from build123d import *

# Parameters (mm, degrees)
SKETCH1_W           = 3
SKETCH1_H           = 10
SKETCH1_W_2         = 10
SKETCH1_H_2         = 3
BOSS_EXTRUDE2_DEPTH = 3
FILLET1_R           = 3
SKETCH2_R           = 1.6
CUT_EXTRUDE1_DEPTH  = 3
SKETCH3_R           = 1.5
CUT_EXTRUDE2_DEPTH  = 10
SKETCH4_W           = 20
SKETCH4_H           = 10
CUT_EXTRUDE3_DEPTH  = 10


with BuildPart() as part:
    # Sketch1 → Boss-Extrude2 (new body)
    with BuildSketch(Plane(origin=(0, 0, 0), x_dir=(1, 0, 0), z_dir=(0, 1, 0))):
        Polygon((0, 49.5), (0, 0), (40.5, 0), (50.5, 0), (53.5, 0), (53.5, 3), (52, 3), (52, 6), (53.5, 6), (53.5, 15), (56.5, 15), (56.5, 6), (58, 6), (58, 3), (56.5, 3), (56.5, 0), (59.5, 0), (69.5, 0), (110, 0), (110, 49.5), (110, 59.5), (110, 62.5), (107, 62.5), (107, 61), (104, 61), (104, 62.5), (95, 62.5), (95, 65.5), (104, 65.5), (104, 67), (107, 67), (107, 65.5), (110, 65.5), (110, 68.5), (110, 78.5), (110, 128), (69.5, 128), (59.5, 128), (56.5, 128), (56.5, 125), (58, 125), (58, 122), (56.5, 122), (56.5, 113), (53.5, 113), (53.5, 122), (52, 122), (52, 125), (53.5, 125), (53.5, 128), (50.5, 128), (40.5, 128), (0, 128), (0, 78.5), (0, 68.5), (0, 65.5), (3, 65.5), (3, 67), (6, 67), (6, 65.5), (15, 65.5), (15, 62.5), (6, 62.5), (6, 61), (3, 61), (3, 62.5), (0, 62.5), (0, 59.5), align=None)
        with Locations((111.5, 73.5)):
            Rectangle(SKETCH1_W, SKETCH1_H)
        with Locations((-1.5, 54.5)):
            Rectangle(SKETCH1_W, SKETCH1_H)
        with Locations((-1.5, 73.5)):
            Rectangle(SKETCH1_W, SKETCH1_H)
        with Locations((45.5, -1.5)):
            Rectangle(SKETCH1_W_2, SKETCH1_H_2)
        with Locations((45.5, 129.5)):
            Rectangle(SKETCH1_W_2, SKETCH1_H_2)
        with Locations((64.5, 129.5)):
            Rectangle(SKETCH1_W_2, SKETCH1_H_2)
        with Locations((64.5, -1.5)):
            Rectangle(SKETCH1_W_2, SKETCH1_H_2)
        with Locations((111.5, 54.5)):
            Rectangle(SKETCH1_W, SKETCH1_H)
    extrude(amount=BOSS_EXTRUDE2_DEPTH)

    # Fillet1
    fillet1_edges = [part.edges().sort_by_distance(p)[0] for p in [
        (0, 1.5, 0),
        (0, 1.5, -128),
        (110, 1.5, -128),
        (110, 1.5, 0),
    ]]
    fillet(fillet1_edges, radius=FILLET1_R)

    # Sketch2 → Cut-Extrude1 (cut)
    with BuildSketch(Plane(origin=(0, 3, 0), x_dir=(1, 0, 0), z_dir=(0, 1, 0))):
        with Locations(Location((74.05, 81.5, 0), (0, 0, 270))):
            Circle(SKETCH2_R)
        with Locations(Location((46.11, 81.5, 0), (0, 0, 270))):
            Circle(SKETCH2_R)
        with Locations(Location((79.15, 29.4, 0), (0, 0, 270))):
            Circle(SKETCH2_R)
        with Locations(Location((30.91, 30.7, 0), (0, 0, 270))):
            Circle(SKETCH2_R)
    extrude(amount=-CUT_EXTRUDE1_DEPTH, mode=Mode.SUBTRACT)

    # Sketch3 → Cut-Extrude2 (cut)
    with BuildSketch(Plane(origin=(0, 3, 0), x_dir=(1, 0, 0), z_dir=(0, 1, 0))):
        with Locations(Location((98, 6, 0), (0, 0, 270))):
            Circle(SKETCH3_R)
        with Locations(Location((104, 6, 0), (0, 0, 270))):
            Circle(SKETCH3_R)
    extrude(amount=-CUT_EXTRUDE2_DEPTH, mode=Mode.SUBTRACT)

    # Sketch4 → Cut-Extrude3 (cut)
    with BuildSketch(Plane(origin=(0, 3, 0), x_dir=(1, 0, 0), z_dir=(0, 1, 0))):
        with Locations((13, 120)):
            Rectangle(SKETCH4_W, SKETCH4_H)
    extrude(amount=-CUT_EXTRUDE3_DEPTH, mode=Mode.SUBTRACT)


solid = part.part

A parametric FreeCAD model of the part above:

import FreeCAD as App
import Part
import Sketcher

V = App.Vector


def edges_at(feature, points):
    """Names of the edges that pass closest to the given points."""
    edges = feature.Shape.Edges
    near = lambda p: min(range(len(edges)), key=lambda i: edges[i].distToShape(Part.Vertex(*p))[0])
    return sorted({f"Edge{near(p) + 1}" for p in points})


def add_polygon(sketch, points):
    """Adds a closed chain of lines whose ends are joined by coincident constraints."""
    first, n = sketch.GeometryCount, len(points)
    for a, b in zip(points, points[1:] + points[:1]):
        sketch.addGeometry(Part.LineSegment(App.Vector(*a, 0), App.Vector(*b, 0)), False)
    for i in range(n):
        sketch.addConstraint(Sketcher.Constraint("Coincident", first + i, 2, first + (i + 1) % n, 1))

doc = App.newDocument("Part")
body = doc.addObject("PartDesign::Body", "Body")

sketch1 = body.newObject("Sketcher::SketchObject", "Sketch")
sketch1.AttachmentSupport = (doc.getObject("XZ_Plane"), [""])
sketch1.MapMode = "FlatFace"
add_polygon(sketch1, [(0, 0), (40.5, 0), (40.5, 3), (50.5, 3), (50.5, 0), (53.5, 0), (53.5, -3), (52, -3), (52, -6), (53.5, -6), (53.5, -15), (56.5, -15), (56.5, -6), (58, -6), (58, -3), (56.5, -3), (56.5, 0), (59.5, 0), (59.5, 3), (69.5, 3), (69.5, 0), (110, 0), (110, -49.5), (113, -49.5), (113, -59.5), (110, -59.5), (110, -62.5), (107, -62.5), (107, -61), (104, -61), (104, -62.5), (95, -62.5), (95, -65.5), (104, -65.5), (104, -67), (107, -67), (107, -65.5), (110, -65.5), (110, -68.5), (113, -68.5), (113, -78.5), (110, -78.5), (110, -128), (69.5, -128), (69.5, -131), (59.5, -131), (59.5, -128), (56.5, -128), (56.5, -125), (58, -125), (58, -122), (56.5, -122), (56.5, -113), (53.5, -113), (53.5, -122), (52, -122), (52, -125), (53.5, -125), (53.5, -128), (50.5, -128), (50.5, -131), (40.5, -131), (40.5, -128), (0, -128), (0, -78.5), (-3, -78.5), (-3, -68.5), (0, -68.5), (0, -65.5), (3, -65.5), (3, -67), (6, -67), (6, -65.5), (15, -65.5), (15, -62.5), (6, -62.5), (6, -61), (3, -61), (3, -62.5), (0, -62.5), (0, -59.5), (-3, -59.5), (-3, -49.5), (0, -49.5)])
sketch1.addConstraint([
    Sketcher.Constraint("Horizontal", 0),
    Sketcher.Constraint("Vertical", 1),
    Sketcher.Constraint("Horizontal", 2),
    Sketcher.Constraint("Vertical", 3),
    Sketcher.Constraint("Horizontal", 4),
    Sketcher.Constraint("Vertical", 5),
    Sketcher.Constraint("Horizontal", 6),
    Sketcher.Constraint("Vertical", 7),
    Sketcher.Constraint("Horizontal", 8),
    Sketcher.Constraint("Vertical", 9),
    Sketcher.Constraint("Horizontal", 10),
    Sketcher.Constraint("Vertical", 11),
    Sketcher.Constraint("Horizontal", 12),
    Sketcher.Constraint("Vertical", 13),
    Sketcher.Constraint("Horizontal", 14),
    Sketcher.Constraint("Vertical", 15),
    Sketcher.Constraint("Horizontal", 16),
    Sketcher.Constraint("Vertical", 17),
    Sketcher.Constraint("Horizontal", 18),
    Sketcher.Constraint("Vertical", 19),
    Sketcher.Constraint("Horizontal", 20),
    Sketcher.Constraint("Vertical", 21),
    Sketcher.Constraint("Horizontal", 22),
    Sketcher.Constraint("Vertical", 23),
    Sketcher.Constraint("Horizontal", 24),
    Sketcher.Constraint("Vertical", 25),
    Sketcher.Constraint("Horizontal", 26),
    Sketcher.Constraint("Vertical", 27),
    Sketcher.Constraint("Horizontal", 28),
    Sketcher.Constraint("Vertical", 29),
    Sketcher.Constraint("Horizontal", 30),
    Sketcher.Constraint("Vertical", 31),
    Sketcher.Constraint("Horizontal", 32),
    Sketcher.Constraint("Vertical", 33),
    Sketcher.Constraint("Horizontal", 34),
    Sketcher.Constraint("Vertical", 35),
    Sketcher.Constraint("Horizontal", 36),
    Sketcher.Constraint("Vertical", 37),
    Sketcher.Constraint("Horizontal", 38),
    Sketcher.Constraint("Vertical", 39),
    Sketcher.Constraint("Horizontal", 40),
    Sketcher.Constraint("Vertical", 41),
    Sketcher.Constraint("Horizontal", 42),
    Sketcher.Constraint("Vertical", 43),
    Sketcher.Constraint("Horizontal", 44),
    Sketcher.Constraint("Vertical", 45),
    Sketcher.Constraint("Horizontal", 46),
    Sketcher.Constraint("Vertical", 47),
    Sketcher.Constraint("Horizontal", 48),
    Sketcher.Constraint("Vertical", 49),
    Sketcher.Constraint("Horizontal", 50),
    Sketcher.Constraint("Vertical", 51),
    Sketcher.Constraint("Horizontal", 52),
    Sketcher.Constraint("Vertical", 53),
    Sketcher.Constraint("Horizontal", 54),
    Sketcher.Constraint("Vertical", 55),
    Sketcher.Constraint("Horizontal", 56),
    Sketcher.Constraint("Vertical", 57),
    Sketcher.Constraint("Horizontal", 58),
    Sketcher.Constraint("Vertical", 59),
    Sketcher.Constraint("Horizontal", 60),
    Sketcher.Constraint("Vertical", 61),
    Sketcher.Constraint("Horizontal", 62),
    Sketcher.Constraint("Vertical", 63),
    Sketcher.Constraint("Horizontal", 64),
    Sketcher.Constraint("Vertical", 65),
    Sketcher.Constraint("Horizontal", 66),
    Sketcher.Constraint("Vertical", 67),
    Sketcher.Constraint("Horizontal", 68),
    Sketcher.Constraint("Vertical", 69),
    Sketcher.Constraint("Horizontal", 70),
    Sketcher.Constraint("Vertical", 71),
    Sketcher.Constraint("Horizontal", 72),
    Sketcher.Constraint("Vertical", 73),
    Sketcher.Constraint("Horizontal", 74),
    Sketcher.Constraint("Vertical", 75),
    Sketcher.Constraint("Horizontal", 76),
    Sketcher.Constraint("Vertical", 77),
    Sketcher.Constraint("Horizontal", 78),
    Sketcher.Constraint("Vertical", 79),
    Sketcher.Constraint("Horizontal", 80),
    Sketcher.Constraint("Vertical", 81),
    Sketcher.Constraint("Horizontal", 82),
    Sketcher.Constraint("Vertical", 83),
    Sketcher.Constraint("Coincident", 83, 2, -1, 1),
    Sketcher.Constraint("PointOnObject", 3, 2, -1),
    Sketcher.Constraint("PointOnObject", 15, 2, -1),
    Sketcher.Constraint("PointOnObject", 19, 2, -1),
    Sketcher.Constraint("PointOnObject", 62, 2, -2),
    Sketcher.Constraint("PointOnObject", 66, 2, -2),
    Sketcher.Constraint("PointOnObject", 78, 2, -2),
    Sketcher.Constraint("Horizontal", 8, 2, 11, 2),
    Sketcher.Constraint("Horizontal", 6, 2, 13, 2),
    Sketcher.Constraint("Horizontal", 2, 2, 17, 2),
    Sketcher.Constraint("Horizontal", 26, 2, 29, 2),
    Sketcher.Constraint("Horizontal", 32, 2, 35, 2),
    Sketcher.Constraint("Horizontal", 42, 2, 45, 2),
    Sketcher.Constraint("Horizontal", 50, 2, 53, 2),
    Sketcher.Constraint("Horizontal", 48, 2, 55, 2),
    Sketcher.Constraint("Horizontal", 46, 2, 57, 2),
    Sketcher.Constraint("Horizontal", 44, 2, 59, 2),
    Sketcher.Constraint("Horizontal", 58, 2, 61, 2),
    Sketcher.Constraint("Horizontal", 40, 2, 63, 2),
    Sketcher.Constraint("Horizontal", 38, 2, 65, 2),
    Sketcher.Constraint("Horizontal", 36, 2, 67, 2),
    Sketcher.Constraint("Horizontal", 34, 2, 69, 2),
    Sketcher.Constraint("Horizontal", 68, 2, 71, 2),
    Sketcher.Constraint("Horizontal", 30, 2, 73, 2),
    Sketcher.Constraint("Horizontal", 28, 2, 75, 2),
    Sketcher.Constraint("Horizontal", 74, 2, 77, 2),
    Sketcher.Constraint("Horizontal", 24, 2, 79, 2),
    Sketcher.Constraint("Horizontal", 22, 2, 81, 2),
    Sketcher.Constraint("Vertical", 5, 2, 8, 2),
    Sketcher.Constraint("Vertical", 11, 2, 14, 2),
    Sketcher.Constraint("Vertical", 21, 2, 24, 2),
    Sketcher.Constraint("Vertical", 29, 2, 32, 2),
    Sketcher.Constraint("Vertical", 27, 2, 34, 2),
    Sketcher.Constraint("Vertical", 25, 2, 36, 2),
    Sketcher.Constraint("Vertical", 23, 2, 38, 2),
    Sketcher.Constraint("Vertical", 37, 2, 40, 2),
    Sketcher.Constraint("Vertical", 19, 2, 42, 2),
    Sketcher.Constraint("Vertical", 17, 2, 44, 2),
    Sketcher.Constraint("Vertical", 15, 2, 46, 2),
    Sketcher.Constraint("Vertical", 13, 2, 48, 2),
    Sketcher.Constraint("Vertical", 47, 2, 50, 2),
    Sketcher.Constraint("Vertical", 9, 2, 52, 2),
    Sketcher.Constraint("Vertical", 7, 2, 54, 2),
    Sketcher.Constraint("Vertical", 53, 2, 56, 2),
    Sketcher.Constraint("Vertical", 3, 2, 58, 2),
    Sketcher.Constraint("Vertical", 1, 2, 60, 2),
    Sketcher.Constraint("Vertical", 71, 2, 74, 2),
    Sketcher.Constraint("Vertical", 69, 2, 76, 2),
    Sketcher.Constraint("Vertical", 65, 2, 80, 2),
    Sketcher.Constraint("Equal", 4, 10),
    Sketcher.Constraint("Equal", 8, 12),
    Sketcher.Constraint("Equal", 10, 16),
    Sketcher.Constraint("Equal", 2, 18),
    Sketcher.Constraint("Equal", 0, 20),
    Sketcher.Constraint("Equal", 16, 22),
    Sketcher.Constraint("Equal", 24, 26),
    Sketcher.Constraint("Equal", 26, 28),
    Sketcher.Constraint("Equal", 58, 64),
    Sketcher.Constraint("Equal", 66, 68),
    Sketcher.Constraint("Equal", 68, 70),
    Sketcher.Constraint("Equal", 32, 72),
    Sketcher.Constraint("Equal", 82, 1),
    Sketcher.Constraint("Equal", 3, 5),
    Sketcher.Constraint("Equal", 5, 7),
    Sketcher.Constraint("Equal", 74, 9),
    Sketcher.Constraint("Equal", 60, 23),
    Sketcher.Constraint("Equal", 19, 25),
    Sketcher.Constraint("Equal", 56, 27),
    Sketcher.Constraint("Equal", 25, 31),
    Sketcher.Constraint("Equal", 29, 33),
    Sketcher.Constraint("Equal", 31, 37),
    Sketcher.Constraint("Equal", 23, 39),
    Sketcher.Constraint("Equal", 21, 41),
    Sketcher.Constraint("Equal", 37, 43),
    Sketcher.Constraint("Equal", 45, 47),
    Sketcher.Constraint("Equal", 47, 49),
    Sketcher.Constraint("Equal", 11, 51),
    Sketcher.Constraint("DistanceX", 2, 1, 2, 2, 10.0),
    Sketcher.Constraint("DistanceX", 4, 1, 4, 2, 3.0),
    Sketcher.Constraint("DistanceX", 30, 2, 30, 1, 9.0),
    Sketcher.Constraint("DistanceX", 0, 1, 0, 2, 40.5),
    Sketcher.Constraint("DistanceX", 6, 2, 6, 1, 1.5),
    Sketcher.Constraint("DistanceY", 21, 2, 21, 1, 49.5),
])
pad1 = body.newObject("PartDesign::Pad", "Pad")
pad1.Profile = sketch1
pad1.Length = 3
pad1.Reversed = True
doc.recompute()

fillet = body.newObject("PartDesign::Fillet", "Fillet")
fillet.Base = (pad1, edges_at(pad1, [
    (0, 1.5, 0),
    (0, 1.5, -128),
    (110, 1.5, -128),
    (110, 1.5, 0),
]))
fillet.Radius = 3

sketch2 = body.newObject("Sketcher::SketchObject", "Sketch001")
sketch2.AttachmentSupport = (doc.getObject("XZ_Plane"), [""])
sketch2.MapMode = "FlatFace"
sketch2.AttachmentOffset = App.Placement(V(0, 0, -3), App.Rotation())
sketch2.addGeometry([
    Part.Circle(V(74, -81.5, 0), V(0, 0, 1), 1.6),
    Part.Circle(V(46.1, -81.5, 0), V(0, 0, 1), 1.6),
    Part.Circle(V(79.2, -29.4, 0), V(0, 0, 1), 1.6),
    Part.Circle(V(30.9, -30.7, 0), V(0, 0, 1), 1.6),
], False)
sketch2.addConstraint([
    Sketcher.Constraint("Equal", 0, 1),
    Sketcher.Constraint("Equal", 1, 2),
    Sketcher.Constraint("Equal", 2, 3),
    Sketcher.Constraint("Horizontal", 0, 3, 1, 3),
    Sketcher.Constraint("Diameter", 0, 3.2),
    Sketcher.Constraint("DistanceY", 0, 3, -1, 1, 81.5),
    Sketcher.Constraint("DistanceY", 2, 3, -1, 1, 29.4),
    Sketcher.Constraint("DistanceY", 3, 3, -1, 1, 30.7),
    Sketcher.Constraint("DistanceX", 0, 3, 2, 3, 5.1),
    Sketcher.Constraint("DistanceX", 3, 3, 1, 3, 15.2),
    Sketcher.Constraint("DistanceX", -1, 1, 0, 3, 74.05),
    Sketcher.Constraint("DistanceX", -1, 1, 1, 3, 46.11),
])
pocket1 = body.newObject("PartDesign::Pocket", "Pocket")
pocket1.Profile = sketch2
pocket1.Length = 3
pocket1.Reversed = True

sketch3 = body.newObject("Sketcher::SketchObject", "Sketch002")
sketch3.AttachmentSupport = (doc.getObject("XZ_Plane"), [""])
sketch3.MapMode = "FlatFace"
sketch3.AttachmentOffset = App.Placement(V(0, 0, -3), App.Rotation())
sketch3.addGeometry([
    Part.Circle(V(98, -6, 0), V(0, 0, 1), 1.5),
    Part.Circle(V(104, -6, 0), V(0, 0, 1), 1.5),
], False)
sketch3.addConstraint([
    Sketcher.Constraint("Equal", 0, 1),
    Sketcher.Constraint("Horizontal", 0, 3, 1, 3),
    Sketcher.Constraint("Diameter", 0, 3.0),
    Sketcher.Constraint("DistanceX", -1, 1, 0, 3, 98.0),
    Sketcher.Constraint("DistanceY", 0, 3, -1, 1, 6.0),
    Sketcher.Constraint("DistanceX", -1, 1, 1, 3, 104.0),
])
pocket2 = body.newObject("PartDesign::Pocket", "Pocket001")
pocket2.Profile = sketch3
pocket2.Length = 10
pocket2.Reversed = True

sketch4 = body.newObject("Sketcher::SketchObject", "Sketch003")
sketch4.AttachmentSupport = (doc.getObject("XZ_Plane"), [""])
sketch4.MapMode = "FlatFace"
sketch4.AttachmentOffset = App.Placement(V(0, 0, -3), App.Rotation())
add_polygon(sketch4, [(3, -125), (3, -115), (23, -115), (23, -125)])
sketch4.addConstraint([
    Sketcher.Constraint("Vertical", 0),
    Sketcher.Constraint("Horizontal", 1),
    Sketcher.Constraint("Vertical", 2),
    Sketcher.Constraint("Horizontal", 3),
    Sketcher.Constraint("DistanceX", 1, 1, 1, 2, 20.0),
    Sketcher.Constraint("DistanceY", 0, 1, 0, 2, 10.0),
    Sketcher.Constraint("DistanceX", -1, 1, 0, 2, 3.0),
    Sketcher.Constraint("DistanceY", 0, 2, -1, 1, 115.0),
])
pocket3 = body.newObject("PartDesign::Pocket", "Pocket002")
pocket3.Profile = sketch4
pocket3.Length = 10
pocket3.Reversed = True

doc.recompute()
